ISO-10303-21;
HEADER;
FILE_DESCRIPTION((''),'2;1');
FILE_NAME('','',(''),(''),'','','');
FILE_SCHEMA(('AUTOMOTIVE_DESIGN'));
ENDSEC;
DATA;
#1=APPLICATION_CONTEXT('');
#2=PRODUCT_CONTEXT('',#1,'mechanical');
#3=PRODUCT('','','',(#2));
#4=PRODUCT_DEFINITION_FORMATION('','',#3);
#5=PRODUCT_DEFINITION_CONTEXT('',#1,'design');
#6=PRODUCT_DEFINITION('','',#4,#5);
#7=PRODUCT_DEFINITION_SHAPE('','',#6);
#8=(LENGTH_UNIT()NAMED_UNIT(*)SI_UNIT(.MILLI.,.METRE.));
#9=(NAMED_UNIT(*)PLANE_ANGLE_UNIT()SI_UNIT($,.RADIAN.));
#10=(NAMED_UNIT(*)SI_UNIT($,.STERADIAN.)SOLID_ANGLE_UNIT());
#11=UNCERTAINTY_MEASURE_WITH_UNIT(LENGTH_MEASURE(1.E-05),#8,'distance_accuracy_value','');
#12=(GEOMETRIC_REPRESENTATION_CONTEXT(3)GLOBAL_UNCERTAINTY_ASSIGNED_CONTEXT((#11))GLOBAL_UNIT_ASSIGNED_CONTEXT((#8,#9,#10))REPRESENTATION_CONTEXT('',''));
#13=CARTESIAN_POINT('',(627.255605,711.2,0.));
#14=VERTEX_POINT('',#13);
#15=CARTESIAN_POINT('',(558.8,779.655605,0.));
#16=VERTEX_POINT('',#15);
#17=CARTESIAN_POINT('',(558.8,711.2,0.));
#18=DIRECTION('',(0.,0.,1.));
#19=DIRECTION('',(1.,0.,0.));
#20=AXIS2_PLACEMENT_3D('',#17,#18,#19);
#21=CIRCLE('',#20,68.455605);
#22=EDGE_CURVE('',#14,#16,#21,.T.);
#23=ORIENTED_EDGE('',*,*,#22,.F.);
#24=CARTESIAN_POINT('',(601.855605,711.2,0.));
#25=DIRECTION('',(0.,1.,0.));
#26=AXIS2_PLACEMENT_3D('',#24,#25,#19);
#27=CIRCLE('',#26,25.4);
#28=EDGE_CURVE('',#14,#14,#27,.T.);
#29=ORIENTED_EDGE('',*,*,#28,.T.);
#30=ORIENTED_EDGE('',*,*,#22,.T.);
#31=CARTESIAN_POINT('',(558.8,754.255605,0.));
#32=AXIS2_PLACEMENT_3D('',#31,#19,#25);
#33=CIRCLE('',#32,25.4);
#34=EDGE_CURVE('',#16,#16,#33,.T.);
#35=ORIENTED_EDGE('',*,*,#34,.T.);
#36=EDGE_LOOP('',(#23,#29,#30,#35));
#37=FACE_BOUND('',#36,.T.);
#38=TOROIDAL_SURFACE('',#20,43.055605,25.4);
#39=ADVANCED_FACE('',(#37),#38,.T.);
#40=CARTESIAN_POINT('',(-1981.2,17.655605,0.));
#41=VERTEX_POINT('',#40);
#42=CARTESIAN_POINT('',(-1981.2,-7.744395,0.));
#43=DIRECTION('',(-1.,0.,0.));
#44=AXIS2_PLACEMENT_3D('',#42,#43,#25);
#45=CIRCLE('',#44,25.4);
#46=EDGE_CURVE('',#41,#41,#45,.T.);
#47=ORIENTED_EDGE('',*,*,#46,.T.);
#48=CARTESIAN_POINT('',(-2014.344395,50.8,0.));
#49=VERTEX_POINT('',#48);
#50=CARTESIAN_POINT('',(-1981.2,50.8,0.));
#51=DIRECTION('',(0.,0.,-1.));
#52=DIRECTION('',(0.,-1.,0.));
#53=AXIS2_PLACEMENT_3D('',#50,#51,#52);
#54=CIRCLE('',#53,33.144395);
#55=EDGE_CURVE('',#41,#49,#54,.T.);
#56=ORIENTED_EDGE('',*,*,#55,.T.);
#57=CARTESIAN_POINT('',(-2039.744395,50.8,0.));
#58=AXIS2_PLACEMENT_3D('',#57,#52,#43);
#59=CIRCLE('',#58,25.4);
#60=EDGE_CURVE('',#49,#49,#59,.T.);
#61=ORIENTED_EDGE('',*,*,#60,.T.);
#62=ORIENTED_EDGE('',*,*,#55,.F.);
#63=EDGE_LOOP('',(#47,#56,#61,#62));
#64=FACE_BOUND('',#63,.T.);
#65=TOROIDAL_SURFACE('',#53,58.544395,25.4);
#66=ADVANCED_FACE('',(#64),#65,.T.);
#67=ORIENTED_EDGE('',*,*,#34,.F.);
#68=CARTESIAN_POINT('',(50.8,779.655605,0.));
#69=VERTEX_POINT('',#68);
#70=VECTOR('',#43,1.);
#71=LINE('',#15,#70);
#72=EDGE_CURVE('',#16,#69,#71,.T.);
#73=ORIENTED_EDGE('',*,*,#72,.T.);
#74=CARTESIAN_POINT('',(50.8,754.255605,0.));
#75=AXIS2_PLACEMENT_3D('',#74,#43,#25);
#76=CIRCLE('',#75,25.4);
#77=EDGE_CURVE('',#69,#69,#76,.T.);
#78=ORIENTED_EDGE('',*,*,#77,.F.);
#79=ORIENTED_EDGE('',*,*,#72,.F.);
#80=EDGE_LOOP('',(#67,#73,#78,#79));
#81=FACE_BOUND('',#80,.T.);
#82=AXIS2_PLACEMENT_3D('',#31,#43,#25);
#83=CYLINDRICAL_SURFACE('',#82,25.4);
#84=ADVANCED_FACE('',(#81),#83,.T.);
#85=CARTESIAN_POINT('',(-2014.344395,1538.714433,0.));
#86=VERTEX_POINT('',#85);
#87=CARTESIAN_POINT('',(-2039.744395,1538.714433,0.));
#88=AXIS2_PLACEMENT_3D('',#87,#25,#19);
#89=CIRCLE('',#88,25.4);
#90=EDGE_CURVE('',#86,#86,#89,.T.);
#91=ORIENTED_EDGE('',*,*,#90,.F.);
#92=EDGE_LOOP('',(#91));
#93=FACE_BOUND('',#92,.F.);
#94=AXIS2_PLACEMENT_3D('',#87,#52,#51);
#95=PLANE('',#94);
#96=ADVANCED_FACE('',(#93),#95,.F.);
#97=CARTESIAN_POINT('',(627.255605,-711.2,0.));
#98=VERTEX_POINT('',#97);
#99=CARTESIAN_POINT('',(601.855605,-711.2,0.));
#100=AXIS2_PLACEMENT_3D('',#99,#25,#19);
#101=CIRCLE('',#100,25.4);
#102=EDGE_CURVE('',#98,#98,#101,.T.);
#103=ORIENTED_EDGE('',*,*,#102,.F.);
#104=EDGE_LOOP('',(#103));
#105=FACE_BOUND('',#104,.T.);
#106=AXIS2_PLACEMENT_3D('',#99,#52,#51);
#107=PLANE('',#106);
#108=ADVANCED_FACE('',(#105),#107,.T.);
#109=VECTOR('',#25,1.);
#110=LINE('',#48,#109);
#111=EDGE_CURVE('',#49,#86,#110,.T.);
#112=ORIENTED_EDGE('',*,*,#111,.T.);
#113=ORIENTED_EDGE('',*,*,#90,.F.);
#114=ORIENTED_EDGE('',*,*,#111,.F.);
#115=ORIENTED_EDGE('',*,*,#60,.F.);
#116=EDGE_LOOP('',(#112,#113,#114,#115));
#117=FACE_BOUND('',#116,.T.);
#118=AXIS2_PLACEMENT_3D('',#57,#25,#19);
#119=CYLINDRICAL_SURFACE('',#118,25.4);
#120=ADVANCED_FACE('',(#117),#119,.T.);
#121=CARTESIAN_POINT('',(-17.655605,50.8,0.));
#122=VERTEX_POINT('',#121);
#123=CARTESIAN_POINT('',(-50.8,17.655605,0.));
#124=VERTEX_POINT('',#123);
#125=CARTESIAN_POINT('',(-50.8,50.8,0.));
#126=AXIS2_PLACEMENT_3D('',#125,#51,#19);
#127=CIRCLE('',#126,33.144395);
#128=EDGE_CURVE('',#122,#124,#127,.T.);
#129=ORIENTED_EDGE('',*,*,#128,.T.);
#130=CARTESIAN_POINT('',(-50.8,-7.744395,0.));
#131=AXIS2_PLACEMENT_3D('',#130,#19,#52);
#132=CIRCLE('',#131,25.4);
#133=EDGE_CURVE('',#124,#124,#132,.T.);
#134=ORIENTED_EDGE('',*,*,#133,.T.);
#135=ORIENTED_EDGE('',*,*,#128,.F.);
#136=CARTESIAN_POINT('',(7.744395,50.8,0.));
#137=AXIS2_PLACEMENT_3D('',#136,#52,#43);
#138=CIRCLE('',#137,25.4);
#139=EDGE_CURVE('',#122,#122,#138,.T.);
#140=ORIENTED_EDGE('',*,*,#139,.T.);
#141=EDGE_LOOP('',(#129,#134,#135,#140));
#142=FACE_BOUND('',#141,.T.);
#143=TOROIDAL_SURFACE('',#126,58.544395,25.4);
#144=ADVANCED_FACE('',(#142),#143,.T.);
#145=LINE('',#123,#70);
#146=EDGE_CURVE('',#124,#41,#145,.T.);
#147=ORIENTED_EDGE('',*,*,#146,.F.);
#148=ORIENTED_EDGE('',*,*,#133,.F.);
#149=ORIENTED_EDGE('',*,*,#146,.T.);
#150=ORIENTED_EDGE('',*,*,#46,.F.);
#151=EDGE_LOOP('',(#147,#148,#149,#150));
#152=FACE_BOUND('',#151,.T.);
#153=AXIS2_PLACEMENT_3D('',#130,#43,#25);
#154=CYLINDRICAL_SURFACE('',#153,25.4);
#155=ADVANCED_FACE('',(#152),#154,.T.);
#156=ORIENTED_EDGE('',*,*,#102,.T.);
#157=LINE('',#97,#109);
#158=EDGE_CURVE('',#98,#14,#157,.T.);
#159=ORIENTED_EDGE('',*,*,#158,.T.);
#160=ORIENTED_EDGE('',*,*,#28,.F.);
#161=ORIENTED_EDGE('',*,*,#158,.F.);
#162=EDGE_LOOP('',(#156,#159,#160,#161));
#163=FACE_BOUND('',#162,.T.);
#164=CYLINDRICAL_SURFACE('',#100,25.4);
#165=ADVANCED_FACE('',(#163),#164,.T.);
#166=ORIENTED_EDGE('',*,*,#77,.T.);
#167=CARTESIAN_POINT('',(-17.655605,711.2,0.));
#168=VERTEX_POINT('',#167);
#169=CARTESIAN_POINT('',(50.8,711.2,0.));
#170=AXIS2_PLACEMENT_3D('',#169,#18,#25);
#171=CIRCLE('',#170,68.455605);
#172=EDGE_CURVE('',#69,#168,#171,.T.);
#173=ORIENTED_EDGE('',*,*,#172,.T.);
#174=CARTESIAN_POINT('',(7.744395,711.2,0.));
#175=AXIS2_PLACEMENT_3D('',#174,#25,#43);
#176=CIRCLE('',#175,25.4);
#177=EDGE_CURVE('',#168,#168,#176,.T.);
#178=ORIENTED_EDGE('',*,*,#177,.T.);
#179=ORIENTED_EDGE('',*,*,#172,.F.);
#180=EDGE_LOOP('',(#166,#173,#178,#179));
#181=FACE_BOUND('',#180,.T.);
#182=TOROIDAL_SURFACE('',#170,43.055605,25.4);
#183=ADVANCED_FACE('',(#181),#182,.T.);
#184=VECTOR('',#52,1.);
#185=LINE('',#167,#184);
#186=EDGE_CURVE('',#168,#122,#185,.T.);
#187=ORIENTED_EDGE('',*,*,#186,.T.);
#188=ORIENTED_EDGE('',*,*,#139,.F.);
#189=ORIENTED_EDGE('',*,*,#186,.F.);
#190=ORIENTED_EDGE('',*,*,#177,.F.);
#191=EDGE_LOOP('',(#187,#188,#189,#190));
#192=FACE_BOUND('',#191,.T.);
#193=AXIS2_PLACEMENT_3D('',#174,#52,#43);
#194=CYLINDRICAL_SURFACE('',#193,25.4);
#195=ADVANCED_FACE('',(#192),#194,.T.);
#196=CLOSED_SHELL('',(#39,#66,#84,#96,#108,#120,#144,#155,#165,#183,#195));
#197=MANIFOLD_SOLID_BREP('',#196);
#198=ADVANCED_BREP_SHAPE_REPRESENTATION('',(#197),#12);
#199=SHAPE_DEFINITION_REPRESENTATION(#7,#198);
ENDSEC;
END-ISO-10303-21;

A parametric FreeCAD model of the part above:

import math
import FreeCAD as App
import Part
import Sketcher

V = App.Vector
Q = App.Units.Quantity

doc = App.newDocument("Part")
body = doc.addObject("PartDesign::Body", "Body")

# Sketch on XZ plane
sketch1 = doc.addObject("Sketcher::SketchObject", "Sketch")
body.addObject(sketch1)
sketch1.AttachmentSupport = (doc.XZ_Plane, [""])
sketch1.MapMode = "FlatFace"
sketch1.AttachmentOffset = App.Placement(V(0, 0, 28 * 25.4), App.Rotation())
sketch1.addGeometry(Part.Circle(V(602, 0, 0), V(0, 0, 1), 25), False)
sketch1.addConstraint([
    Sketcher.Constraint("PointOnObject", 0, 3, -1),
    Sketcher.Constraint("Diameter", 0, Q("2 in")),
    Sketcher.Constraint("DistanceX", -1, 1, 0, 3, 601.855605),
])

# Sketch on XY plane
sketch2 = doc.addObject("Sketcher::SketchObject", "Sketch001")
body.addObject(sketch2)
sketch2.AttachmentSupport = (doc.XY_Plane, [""])
sketch2.MapMode = "FlatFace"
sketch2.addGeometry([
    Part.LineSegment(V(610, -711, 0), V(610, 711, 0)),  # 0
    Part.ArcOfCircle(Part.Circle(V(559, 711, 0), V(0, 0, 1), 51), math.radians(0), math.radians(90)),  # 1
    Part.LineSegment(V(559, 762, 0), V(51, 762, 0)),  # 2
    Part.ArcOfCircle(Part.Circle(V(51, 711, 0), V(0, 0, 1), 51), math.radians(90), math.radians(180)),  # 3
    Part.LineSegment(V(0, 711, 0), V(0, 51, 0)),  # 4
    Part.ArcOfCircle(Part.Circle(V(-51, 51, 0), V(0, 0, 1), 51), math.radians(-90), math.radians(0)),  # 5
    Part.LineSegment(V(-51, 0, 0), V(-1981, 0, 0)),  # 6
    Part.ArcOfCircle(Part.Circle(V(-1981, 51, 0), V(0, 0, 1), 51), math.radians(180), math.radians(270)),  # 7
    Part.LineSegment(V(-2032, 51, 0), V(-2032, 1539, 0)),  # 8
], False)
sketch2.addConstraint([
    Sketcher.Constraint("Tangent", 0, 2, 1, 1),
    Sketcher.Constraint("Tangent", 1, 2, 2, 1),
    Sketcher.Constraint("Tangent", 2, 2, 3, 1),
    Sketcher.Constraint("Tangent", 3, 2, 4, 1),
    Sketcher.Constraint("Tangent", 4, 2, 5, 2),
    Sketcher.Constraint("Tangent", 5, 1, 6, 1),
    Sketcher.Constraint("Tangent", 6, 2, 7, 2),
    Sketcher.Constraint("Tangent", 7, 1, 8, 1),
    Sketcher.Constraint("Vertical", 0),
    Sketcher.Constraint("Horizontal", 2),
    Sketcher.Constraint("Vertical", 4),
    Sketcher.Constraint("Horizontal", 6),
    Sketcher.Constraint("Vertical", 8),
    Sketcher.Constraint("Equal", 1, 3),
    Sketcher.Constraint("Equal", 3, 5),
    Sketcher.Constraint("Equal", 5, 7),
    Sketcher.Constraint("PointOnObject", 3, 2, -2),
    Sketcher.Constraint("PointOnObject", 5, 1, -1),
    Sketcher.Constraint("Radius", 1, Q("2 in")),
    Sketcher.Constraint("DistanceX", 2, 2, 2, 1, Q("20 in")),
    Sketcher.Constraint("DistanceX", 6, 2, 6, 1, Q("76 in")),
    Sketcher.Constraint("DistanceY", 0, 1, 0, 2, Q("56 in")),
    Sketcher.Constraint("DistanceY", 4, 2, 4, 1, Q("26 in")),
    Sketcher.Constraint("DistanceY", 8, 1, 8, 2, 1487.914433),
])
doc.recompute()

additivepipe = doc.addObject("PartDesign::AdditivePipe", "AdditivePipe")
body.addObject(additivepipe)
additivepipe.Profile = sketch1
additivepipe.Spine = (sketch2, ["Edge1", "Edge2", "Edge3", "Edge4", "Edge5", "Edge6", "Edge7", "Edge8", "Edge9"])

doc.recompute()
